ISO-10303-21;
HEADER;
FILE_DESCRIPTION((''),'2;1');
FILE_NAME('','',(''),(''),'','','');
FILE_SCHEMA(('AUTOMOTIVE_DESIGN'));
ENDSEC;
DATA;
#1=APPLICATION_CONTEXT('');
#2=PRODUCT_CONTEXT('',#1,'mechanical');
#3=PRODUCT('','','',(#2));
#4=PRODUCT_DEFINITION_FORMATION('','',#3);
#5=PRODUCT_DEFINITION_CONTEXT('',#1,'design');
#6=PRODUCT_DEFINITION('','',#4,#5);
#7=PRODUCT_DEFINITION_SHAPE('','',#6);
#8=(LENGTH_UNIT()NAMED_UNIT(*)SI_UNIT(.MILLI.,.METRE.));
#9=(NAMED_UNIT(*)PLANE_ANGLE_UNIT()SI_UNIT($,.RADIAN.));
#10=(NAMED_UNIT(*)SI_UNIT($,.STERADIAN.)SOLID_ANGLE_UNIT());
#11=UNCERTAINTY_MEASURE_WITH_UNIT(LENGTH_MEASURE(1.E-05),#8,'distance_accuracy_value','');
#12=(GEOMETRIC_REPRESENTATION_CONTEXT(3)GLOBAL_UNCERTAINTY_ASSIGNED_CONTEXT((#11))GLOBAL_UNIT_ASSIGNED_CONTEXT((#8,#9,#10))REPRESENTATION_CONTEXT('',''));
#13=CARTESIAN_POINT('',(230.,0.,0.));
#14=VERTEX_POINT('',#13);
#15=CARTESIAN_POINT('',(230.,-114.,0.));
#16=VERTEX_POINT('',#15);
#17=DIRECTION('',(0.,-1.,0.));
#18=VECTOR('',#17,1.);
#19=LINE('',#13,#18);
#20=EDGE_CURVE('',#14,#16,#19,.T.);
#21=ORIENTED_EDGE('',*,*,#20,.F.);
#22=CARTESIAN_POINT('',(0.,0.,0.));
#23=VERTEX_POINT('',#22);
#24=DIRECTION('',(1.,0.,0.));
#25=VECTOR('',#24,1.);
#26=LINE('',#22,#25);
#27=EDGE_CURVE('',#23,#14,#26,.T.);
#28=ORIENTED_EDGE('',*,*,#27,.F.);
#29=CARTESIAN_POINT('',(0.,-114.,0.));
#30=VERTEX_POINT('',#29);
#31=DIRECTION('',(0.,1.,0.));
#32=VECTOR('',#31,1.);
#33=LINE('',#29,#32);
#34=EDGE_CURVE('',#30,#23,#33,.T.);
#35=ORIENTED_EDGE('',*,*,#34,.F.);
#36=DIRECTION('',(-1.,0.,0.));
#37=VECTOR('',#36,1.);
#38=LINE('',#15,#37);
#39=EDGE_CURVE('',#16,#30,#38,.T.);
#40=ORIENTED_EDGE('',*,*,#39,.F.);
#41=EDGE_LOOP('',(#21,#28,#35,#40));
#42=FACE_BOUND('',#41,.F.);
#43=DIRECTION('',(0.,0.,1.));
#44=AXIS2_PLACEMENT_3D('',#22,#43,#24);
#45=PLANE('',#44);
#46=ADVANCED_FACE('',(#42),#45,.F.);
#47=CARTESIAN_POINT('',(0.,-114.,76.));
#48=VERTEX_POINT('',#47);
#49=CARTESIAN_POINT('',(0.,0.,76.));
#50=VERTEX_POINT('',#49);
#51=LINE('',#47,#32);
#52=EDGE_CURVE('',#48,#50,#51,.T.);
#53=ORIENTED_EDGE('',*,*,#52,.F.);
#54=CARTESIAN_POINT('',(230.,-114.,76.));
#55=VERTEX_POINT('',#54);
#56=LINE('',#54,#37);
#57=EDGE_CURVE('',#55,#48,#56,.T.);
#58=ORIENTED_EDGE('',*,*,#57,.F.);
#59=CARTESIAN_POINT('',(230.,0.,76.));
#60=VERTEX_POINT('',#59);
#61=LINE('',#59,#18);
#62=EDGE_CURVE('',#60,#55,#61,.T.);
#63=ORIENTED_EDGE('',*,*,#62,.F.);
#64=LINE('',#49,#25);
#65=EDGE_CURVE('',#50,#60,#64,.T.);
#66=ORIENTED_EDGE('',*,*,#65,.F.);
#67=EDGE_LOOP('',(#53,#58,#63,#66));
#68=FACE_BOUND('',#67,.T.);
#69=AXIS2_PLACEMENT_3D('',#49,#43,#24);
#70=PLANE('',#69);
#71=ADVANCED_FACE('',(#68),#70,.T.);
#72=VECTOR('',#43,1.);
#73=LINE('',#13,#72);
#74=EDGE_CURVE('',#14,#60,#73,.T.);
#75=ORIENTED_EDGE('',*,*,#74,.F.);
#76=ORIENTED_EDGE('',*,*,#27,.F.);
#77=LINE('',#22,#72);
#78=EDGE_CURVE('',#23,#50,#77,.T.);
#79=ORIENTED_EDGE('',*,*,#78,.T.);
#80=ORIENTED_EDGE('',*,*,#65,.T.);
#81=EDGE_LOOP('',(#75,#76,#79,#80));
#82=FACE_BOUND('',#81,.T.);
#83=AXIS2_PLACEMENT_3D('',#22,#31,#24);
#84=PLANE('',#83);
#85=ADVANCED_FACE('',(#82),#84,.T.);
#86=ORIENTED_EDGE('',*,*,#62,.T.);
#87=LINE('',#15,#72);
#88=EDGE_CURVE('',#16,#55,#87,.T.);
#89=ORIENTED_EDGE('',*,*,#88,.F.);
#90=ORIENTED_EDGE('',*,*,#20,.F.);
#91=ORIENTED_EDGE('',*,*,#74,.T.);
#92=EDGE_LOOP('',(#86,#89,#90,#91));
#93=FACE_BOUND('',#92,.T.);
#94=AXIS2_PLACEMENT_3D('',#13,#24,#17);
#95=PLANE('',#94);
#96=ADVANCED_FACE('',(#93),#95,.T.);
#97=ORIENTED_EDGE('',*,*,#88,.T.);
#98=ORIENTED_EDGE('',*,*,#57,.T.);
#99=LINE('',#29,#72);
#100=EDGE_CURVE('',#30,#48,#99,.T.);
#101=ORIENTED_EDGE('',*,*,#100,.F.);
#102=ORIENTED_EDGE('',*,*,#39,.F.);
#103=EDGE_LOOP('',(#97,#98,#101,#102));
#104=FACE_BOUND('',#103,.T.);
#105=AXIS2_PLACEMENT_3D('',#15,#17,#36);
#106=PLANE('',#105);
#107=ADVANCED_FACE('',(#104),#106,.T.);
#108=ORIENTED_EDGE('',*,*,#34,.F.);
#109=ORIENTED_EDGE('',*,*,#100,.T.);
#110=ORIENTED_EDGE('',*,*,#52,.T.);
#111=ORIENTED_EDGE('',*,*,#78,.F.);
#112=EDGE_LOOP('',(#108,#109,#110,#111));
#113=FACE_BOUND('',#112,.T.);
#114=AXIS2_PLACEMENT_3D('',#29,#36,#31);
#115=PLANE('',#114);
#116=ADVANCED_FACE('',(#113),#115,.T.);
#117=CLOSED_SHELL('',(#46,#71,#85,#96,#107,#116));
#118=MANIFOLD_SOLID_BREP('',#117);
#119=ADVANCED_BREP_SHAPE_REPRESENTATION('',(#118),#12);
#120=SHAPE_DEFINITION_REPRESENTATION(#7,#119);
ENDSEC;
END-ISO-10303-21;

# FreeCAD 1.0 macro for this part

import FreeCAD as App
import Part
import Sketcher

V = App.Vector
Q = App.Units.Quantity

doc = App.newDocument("Part")
body = doc.addObject("PartDesign::Body", "Body")

sketch1 = body.newObject("Sketcher::SketchObject", "Sketch")
sketch1.AttachmentSupport = (doc.getObject("XY_Plane"), [""])
sketch1.MapMode = "FlatFace"
sketch1.addGeometry(Part.LineSegment(V(230, 0, 0), V(0, 0, 0)), False)
sketch1.addGeometry(Part.LineSegment(V(0, 0, 0), V(0, -114, 0)), False)
sketch1.addGeometry(Part.LineSegment(V(0, -114, 0), V(230, -114, 0)), False)
sketch1.addGeometry(Part.LineSegment(V(230, -114, 0), V(230, 0, 0)), False)
sketch1.addConstraint(Sketcher.Constraint("Coincident", 0, 2, 1, 1))
sketch1.addConstraint(Sketcher.Constraint("Coincident", 1, 2, 2, 1))
sketch1.addConstraint(Sketcher.Constraint("Coincident", 2, 2, 3, 1))
sketch1.addConstraint(Sketcher.Constraint("Coincident", 3, 2, 0, 1))
sketch1.addConstraint(Sketcher.Constraint("Horizontal", 0))
sketch1.addConstraint(Sketcher.Constraint("Vertical", 1))
sketch1.addConstraint(Sketcher.Constraint("Horizontal", 2))
sketch1.addConstraint(Sketcher.Constraint("Vertical", 3))
sketch1.addConstraint(Sketcher.Constraint("Coincident", 0, 2, -1, 1))
sketch1.addConstraint(Sketcher.Constraint("DistanceX", 0, 2, 0, 1, Q("230 mm")))
sketch1.addConstraint(Sketcher.Constraint("DistanceY", 1, 2, 1, 1, Q("114 mm")))
pad1 = body.newObject("PartDesign::Pad", "Pad")
pad1.Profile = sketch1
pad1.Length = 76

doc.recompute()
